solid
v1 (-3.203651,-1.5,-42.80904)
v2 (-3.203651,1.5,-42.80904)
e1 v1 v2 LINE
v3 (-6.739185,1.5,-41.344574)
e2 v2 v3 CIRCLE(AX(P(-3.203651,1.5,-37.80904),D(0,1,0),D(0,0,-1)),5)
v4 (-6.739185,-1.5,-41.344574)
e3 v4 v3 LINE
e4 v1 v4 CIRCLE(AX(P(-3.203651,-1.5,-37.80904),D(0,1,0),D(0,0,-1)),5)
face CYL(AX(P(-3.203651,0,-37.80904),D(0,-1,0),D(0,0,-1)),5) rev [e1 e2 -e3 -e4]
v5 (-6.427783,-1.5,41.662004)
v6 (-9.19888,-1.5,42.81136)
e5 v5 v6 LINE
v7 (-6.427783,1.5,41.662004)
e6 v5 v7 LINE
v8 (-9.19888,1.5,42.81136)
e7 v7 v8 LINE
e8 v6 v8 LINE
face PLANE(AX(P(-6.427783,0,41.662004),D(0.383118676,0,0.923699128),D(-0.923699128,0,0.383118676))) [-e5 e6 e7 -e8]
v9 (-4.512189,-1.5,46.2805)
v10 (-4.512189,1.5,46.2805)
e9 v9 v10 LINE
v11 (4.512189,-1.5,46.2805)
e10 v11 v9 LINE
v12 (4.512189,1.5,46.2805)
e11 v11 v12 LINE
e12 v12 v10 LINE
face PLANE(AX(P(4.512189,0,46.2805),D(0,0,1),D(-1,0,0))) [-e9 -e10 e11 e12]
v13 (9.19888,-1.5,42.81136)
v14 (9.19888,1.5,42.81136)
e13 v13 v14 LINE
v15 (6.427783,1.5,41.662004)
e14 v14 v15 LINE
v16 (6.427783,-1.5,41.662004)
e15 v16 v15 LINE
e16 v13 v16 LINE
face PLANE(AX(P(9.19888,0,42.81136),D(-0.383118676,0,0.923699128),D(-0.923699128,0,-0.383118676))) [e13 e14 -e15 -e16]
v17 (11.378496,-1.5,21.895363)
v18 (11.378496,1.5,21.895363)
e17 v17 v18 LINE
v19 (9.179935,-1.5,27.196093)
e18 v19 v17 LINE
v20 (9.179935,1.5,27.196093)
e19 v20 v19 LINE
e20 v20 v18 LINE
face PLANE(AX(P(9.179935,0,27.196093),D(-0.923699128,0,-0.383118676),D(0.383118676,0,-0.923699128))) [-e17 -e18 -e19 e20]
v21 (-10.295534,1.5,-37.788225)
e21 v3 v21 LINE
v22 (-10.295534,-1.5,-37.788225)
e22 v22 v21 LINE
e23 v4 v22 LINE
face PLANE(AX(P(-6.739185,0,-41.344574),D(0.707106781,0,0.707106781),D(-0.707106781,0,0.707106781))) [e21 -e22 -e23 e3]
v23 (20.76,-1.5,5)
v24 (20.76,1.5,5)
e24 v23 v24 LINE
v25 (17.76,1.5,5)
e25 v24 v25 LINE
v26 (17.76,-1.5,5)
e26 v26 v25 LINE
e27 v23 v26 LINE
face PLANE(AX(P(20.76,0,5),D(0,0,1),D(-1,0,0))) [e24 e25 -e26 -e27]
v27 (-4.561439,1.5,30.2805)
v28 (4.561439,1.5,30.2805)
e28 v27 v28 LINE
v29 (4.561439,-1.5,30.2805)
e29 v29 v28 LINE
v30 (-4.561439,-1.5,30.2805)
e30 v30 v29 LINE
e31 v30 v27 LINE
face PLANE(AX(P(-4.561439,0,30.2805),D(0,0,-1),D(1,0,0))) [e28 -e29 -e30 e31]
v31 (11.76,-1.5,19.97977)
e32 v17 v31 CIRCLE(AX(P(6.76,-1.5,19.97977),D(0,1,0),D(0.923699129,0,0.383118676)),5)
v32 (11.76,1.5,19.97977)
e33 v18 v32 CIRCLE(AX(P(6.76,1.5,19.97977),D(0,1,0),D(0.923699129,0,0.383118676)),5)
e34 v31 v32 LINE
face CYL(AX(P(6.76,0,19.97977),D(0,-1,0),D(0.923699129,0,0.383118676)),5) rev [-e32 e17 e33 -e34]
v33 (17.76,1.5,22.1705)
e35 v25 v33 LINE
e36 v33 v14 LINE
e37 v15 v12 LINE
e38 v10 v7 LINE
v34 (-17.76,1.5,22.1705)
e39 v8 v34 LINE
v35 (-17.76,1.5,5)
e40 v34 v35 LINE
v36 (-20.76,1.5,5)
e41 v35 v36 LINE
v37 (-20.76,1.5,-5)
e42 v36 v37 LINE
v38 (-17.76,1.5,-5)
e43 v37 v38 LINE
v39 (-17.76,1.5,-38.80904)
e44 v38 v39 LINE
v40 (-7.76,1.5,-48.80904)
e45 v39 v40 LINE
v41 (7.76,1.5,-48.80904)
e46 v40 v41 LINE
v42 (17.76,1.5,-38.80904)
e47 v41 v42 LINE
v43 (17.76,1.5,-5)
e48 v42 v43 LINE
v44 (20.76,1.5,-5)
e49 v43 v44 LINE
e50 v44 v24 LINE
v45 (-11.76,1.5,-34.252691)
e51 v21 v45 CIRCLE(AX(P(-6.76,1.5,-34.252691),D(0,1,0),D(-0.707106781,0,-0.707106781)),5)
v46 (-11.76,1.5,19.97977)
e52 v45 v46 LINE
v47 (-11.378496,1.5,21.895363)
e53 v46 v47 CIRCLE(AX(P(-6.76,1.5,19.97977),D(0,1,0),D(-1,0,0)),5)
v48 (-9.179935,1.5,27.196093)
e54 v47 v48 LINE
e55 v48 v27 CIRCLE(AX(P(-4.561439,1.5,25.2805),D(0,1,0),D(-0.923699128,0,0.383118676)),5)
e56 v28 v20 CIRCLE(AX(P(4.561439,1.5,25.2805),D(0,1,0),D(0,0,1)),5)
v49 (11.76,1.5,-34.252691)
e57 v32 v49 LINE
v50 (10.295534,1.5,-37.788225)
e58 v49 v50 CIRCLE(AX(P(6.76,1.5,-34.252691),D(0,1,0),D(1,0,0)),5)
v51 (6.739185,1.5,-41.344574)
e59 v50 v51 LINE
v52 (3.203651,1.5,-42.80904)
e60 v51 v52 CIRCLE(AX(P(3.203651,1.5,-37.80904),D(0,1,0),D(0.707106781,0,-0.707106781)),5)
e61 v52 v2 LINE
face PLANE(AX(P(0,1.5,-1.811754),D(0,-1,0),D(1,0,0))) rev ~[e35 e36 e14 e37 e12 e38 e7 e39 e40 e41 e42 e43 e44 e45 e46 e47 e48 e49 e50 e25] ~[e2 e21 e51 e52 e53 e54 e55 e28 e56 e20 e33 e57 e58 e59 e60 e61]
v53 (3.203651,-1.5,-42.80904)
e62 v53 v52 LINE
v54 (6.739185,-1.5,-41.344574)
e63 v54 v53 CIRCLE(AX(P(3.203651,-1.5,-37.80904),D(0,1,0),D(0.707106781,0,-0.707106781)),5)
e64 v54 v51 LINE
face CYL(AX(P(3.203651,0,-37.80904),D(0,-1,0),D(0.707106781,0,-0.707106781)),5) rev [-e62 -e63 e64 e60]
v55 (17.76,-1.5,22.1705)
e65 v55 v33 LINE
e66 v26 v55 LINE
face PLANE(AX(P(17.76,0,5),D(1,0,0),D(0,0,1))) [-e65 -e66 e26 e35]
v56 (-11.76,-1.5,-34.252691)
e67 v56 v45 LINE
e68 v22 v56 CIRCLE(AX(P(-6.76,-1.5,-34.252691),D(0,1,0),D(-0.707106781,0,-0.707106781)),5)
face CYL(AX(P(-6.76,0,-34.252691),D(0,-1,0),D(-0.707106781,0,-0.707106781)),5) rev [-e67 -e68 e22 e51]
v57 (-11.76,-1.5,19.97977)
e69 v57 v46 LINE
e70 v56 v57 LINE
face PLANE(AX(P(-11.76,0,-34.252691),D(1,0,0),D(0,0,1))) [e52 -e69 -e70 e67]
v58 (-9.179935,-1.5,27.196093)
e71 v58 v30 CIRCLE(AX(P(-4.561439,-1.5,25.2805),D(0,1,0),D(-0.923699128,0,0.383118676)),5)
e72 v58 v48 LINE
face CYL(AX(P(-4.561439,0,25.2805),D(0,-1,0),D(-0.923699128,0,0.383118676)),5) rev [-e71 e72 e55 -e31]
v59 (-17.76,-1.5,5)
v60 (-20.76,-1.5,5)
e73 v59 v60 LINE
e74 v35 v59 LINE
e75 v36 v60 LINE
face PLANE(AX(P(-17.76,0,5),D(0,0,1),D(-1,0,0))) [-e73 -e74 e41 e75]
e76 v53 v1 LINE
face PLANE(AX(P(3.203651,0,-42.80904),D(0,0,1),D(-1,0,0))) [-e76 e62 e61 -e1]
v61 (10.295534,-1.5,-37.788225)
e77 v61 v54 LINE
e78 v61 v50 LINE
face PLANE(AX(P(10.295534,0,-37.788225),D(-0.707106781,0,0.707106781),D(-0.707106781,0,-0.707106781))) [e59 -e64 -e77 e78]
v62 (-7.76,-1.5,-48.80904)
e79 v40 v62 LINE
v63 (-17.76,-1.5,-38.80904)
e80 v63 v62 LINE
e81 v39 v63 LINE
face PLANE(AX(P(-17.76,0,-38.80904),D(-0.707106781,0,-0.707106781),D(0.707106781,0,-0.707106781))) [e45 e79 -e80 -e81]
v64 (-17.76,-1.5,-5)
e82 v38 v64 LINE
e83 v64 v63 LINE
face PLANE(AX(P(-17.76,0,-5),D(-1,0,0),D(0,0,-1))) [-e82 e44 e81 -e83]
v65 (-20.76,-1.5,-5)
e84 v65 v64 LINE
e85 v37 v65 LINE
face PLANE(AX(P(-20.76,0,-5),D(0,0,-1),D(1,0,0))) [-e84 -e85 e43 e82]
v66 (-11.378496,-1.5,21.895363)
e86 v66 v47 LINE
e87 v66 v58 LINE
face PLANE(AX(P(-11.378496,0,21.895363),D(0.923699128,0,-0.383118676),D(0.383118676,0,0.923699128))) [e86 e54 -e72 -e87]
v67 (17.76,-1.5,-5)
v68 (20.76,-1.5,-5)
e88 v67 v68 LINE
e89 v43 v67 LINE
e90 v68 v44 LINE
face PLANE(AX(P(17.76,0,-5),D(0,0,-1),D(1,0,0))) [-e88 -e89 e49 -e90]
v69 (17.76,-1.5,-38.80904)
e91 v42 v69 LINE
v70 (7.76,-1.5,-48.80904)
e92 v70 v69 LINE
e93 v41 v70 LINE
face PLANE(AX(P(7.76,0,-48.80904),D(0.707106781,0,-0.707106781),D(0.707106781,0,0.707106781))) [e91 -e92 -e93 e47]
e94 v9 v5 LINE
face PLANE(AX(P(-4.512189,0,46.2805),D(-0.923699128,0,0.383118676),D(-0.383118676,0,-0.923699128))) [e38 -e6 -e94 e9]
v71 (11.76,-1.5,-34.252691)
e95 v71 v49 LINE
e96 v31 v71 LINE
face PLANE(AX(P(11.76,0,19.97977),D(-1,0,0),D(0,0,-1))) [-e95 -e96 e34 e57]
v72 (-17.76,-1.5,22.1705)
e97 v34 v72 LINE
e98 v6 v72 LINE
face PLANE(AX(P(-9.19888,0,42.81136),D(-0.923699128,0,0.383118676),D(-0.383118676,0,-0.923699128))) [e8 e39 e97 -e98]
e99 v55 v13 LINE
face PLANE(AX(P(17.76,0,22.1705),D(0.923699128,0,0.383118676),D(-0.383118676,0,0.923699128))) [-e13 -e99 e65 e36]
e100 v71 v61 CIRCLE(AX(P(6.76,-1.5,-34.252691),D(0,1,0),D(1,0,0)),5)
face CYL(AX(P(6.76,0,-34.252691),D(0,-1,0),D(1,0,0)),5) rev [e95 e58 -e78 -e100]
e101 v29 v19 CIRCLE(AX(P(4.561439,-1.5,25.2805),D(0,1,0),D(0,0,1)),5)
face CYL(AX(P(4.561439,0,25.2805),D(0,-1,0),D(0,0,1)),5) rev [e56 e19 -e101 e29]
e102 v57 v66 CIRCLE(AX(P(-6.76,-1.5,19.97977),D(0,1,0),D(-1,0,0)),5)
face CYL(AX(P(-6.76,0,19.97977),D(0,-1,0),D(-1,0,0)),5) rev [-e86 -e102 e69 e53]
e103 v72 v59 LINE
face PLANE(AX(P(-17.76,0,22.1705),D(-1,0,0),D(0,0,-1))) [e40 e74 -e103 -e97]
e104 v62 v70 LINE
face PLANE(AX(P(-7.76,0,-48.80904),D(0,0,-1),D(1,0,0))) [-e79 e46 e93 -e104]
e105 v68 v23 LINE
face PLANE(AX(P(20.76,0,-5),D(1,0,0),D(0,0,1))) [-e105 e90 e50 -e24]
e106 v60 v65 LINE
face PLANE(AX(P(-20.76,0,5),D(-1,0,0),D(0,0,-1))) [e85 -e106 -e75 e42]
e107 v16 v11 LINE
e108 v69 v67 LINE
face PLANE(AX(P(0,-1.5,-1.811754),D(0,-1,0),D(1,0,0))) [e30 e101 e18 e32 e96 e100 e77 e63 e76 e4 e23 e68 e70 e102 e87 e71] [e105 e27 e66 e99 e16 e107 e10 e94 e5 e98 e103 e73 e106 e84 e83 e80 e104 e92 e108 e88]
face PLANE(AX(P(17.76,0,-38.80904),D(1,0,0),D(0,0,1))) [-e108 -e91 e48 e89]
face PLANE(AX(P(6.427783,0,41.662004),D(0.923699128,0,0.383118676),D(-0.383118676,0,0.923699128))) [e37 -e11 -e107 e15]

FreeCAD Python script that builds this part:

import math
import FreeCAD as App
import Part
import Sketcher

V = App.Vector


def add_polygon(sketch, points):
    """Adds a closed chain of lines whose ends are joined by coincident constraints."""
    first, n = sketch.GeometryCount, len(points)
    for a, b in zip(points, points[1:] + points[:1]):
        sketch.addGeometry(Part.LineSegment(App.Vector(*a, 0), App.Vector(*b, 0)), False)
    for i in range(n):
        sketch.addConstraint(Sketcher.Constraint("Coincident", first + i, 2, first + (i + 1) % n, 1))

doc = App.newDocument("Part")
body = doc.addObject("PartDesign::Body", "Body")

# Sketch on XZ plane
sketch1 = body.newObject("Sketcher::SketchObject", "Sketch")
sketch1.AttachmentSupport = (doc.getObject("XZ_Plane"), [""])
sketch1.MapMode = "FlatFace"
add_polygon(sketch1, [(-9.2, 42.8), (-17.8, 22.2), (-17.8, 5), (-20.8, 5), (-20.8, -5), (-17.8, -5), (-17.8, -38.8), (-7.8, -48.8), (7.8, -48.8), (17.8, -38.8), (17.8, -5), (20.8, -5), (20.8, 5), (17.8, 5), (17.8, 22.2), (9.2, 42.8), (6.4, 41.7), (4.5, 46.3), (-4.5, 46.3), (-6.4, 41.7)])  # lines 0-19
sketch1.addGeometry(Part.ArcOfCircle(Part.Circle(V(4.6, 25.3, 0), V(0, 0, 1), 5), math.radians(23), math.radians(90)), False)  # 20
sketch1.addGeometry(Part.LineSegment(V(9.2, 27.2, 0), V(11.4, 21.9, 0)), False)  # 21
sketch1.addGeometry(Part.ArcOfCircle(Part.Circle(V(6.8, 20, 0), V(0, 0, 1), 5), math.radians(0), math.radians(23)), False)  # 22
sketch1.addGeometry(Part.LineSegment(V(11.8, 20, 0), V(11.8, -34.3, 0)), False)  # 23
sketch1.addGeometry(Part.ArcOfCircle(Part.Circle(V(6.8, -34.3, 0), V(0, 0, 1), 5), math.radians(-45), math.radians(0)), False)  # 24
sketch1.addGeometry(Part.LineSegment(V(10.3, -37.8, 0), V(6.7, -41.3, 0)), False)  # 25
sketch1.addGeometry(Part.ArcOfCircle(Part.Circle(V(3.2, -37.8, 0), V(0, 0, 1), 5), math.radians(-90), math.radians(-45)), False)  # 26
sketch1.addGeometry(Part.LineSegment(V(3.2, -42.8, 0), V(-3.2, -42.8, 0)), False)  # 27
sketch1.addGeometry(Part.ArcOfCircle(Part.Circle(V(-3.2, -37.8, 0), V(0, 0, 1), 5), math.radians(-135), math.radians(-90)), False)  # 28
sketch1.addGeometry(Part.LineSegment(V(-6.7, -41.3, 0), V(-10.3, -37.8, 0)), False)  # 29
sketch1.addGeometry(Part.ArcOfCircle(Part.Circle(V(-6.8, -34.3, 0), V(0, 0, 1), 5), math.radians(180), math.radians(225)), False)  # 30
sketch1.addGeometry(Part.LineSegment(V(-11.8, -34.3, 0), V(-11.8, 20, 0)), False)  # 31
sketch1.addGeometry(Part.ArcOfCircle(Part.Circle(V(-6.8, 20, 0), V(0, 0, 1), 5), math.radians(157), math.radians(180)), False)  # 32
sketch1.addGeometry(Part.LineSegment(V(-11.4, 21.9, 0), V(-9.2, 27.2, 0)), False)  # 33
sketch1.addGeometry(Part.ArcOfCircle(Part.Circle(V(-4.6, 25.3, 0), V(0, 0, 1), 5), math.radians(90), math.radians(157)), False)  # 34
sketch1.addGeometry(Part.LineSegment(V(-4.6, 30.3, 0), V(4.6, 30.3, 0)), False)  # 35
sketch1.addConstraint(Sketcher.Constraint("Tangent", 20, 1, 21, 1))
sketch1.addConstraint(Sketcher.Constraint("Tangent", 21, 2, 22, 2))
sketch1.addConstraint(Sketcher.Constraint("Tangent", 22, 1, 23, 1))
sketch1.addConstraint(Sketcher.Constraint("Tangent", 23, 2, 24, 2))
sketch1.addConstraint(Sketcher.Constraint("Tangent", 24, 1, 25, 1))
sketch1.addConstraint(Sketcher.Constraint("Tangent", 25, 2, 26, 2))
sketch1.addConstraint(Sketcher.Constraint("Tangent", 26, 1, 27, 1))
sketch1.addConstraint(Sketcher.Constraint("Tangent", 27, 2, 28, 2))
sketch1.addConstraint(Sketcher.Constraint("Tangent", 28, 1, 29, 1))
sketch1.addConstraint(Sketcher.Constraint("Tangent", 29, 2, 30, 2))
sketch1.addConstraint(Sketcher.Constraint("Tangent", 30, 1, 31, 1))
sketch1.addConstraint(Sketcher.Constraint("Tangent", 31, 2, 32, 2))
sketch1.addConstraint(Sketcher.Constraint("Tangent", 32, 1, 33, 1))
sketch1.addConstraint(Sketcher.Constraint("Tangent", 33, 2, 34, 2))
sketch1.addConstraint(Sketcher.Constraint("Tangent", 34, 1, 35, 1))
sketch1.addConstraint(Sketcher.Constraint("Tangent", 35, 2, 20, 2))
sketch1.addConstraint(Sketcher.Constraint("Vertical", 1))
sketch1.addConstraint(Sketcher.Constraint("Horizontal", 2))
sketch1.addConstraint(Sketcher.Constraint("Vertical", 3))
sketch1.addConstraint(Sketcher.Constraint("Horizontal", 4))
sketch1.addConstraint(Sketcher.Constraint("Vertical", 5))
sketch1.addConstraint(Sketcher.Constraint("Horizontal", 7))
sketch1.addConstraint(Sketcher.Constraint("Vertical", 9))
sketch1.addConstraint(Sketcher.Constraint("Horizontal", 10))
sketch1.addConstraint(Sketcher.Constraint("Vertical", 11))
sketch1.addConstraint(Sketcher.Constraint("Horizontal", 12))
sketch1.addConstraint(Sketcher.Constraint("Vertical", 13))
sketch1.addConstraint(Sketcher.Constraint("Horizontal", 17))
sketch1.addConstraint(Sketcher.Constraint("Vertical", 23))
sketch1.addConstraint(Sketcher.Constraint("Horizontal", 27))
sketch1.addConstraint(Sketcher.Constraint("Vertical", 31))
sketch1.addConstraint(Sketcher.Constraint("Horizontal", 35))
sketch1.addConstraint(Sketcher.Constraint("Equal", 20, 22))
sketch1.addConstraint(Sketcher.Constraint("Equal", 22, 24))
sketch1.addConstraint(Sketcher.Constraint("Equal", 24, 26))
sketch1.addConstraint(Sketcher.Constraint("Equal", 26, 28))
sketch1.addConstraint(Sketcher.Constraint("Equal", 28, 30))
sketch1.addConstraint(Sketcher.Constraint("Equal", 30, 32))
sketch1.addConstraint(Sketcher.Constraint("Equal", 32, 34))
sketch1.addConstraint(Sketcher.Constraint("Symmetric", 1, 2, 9, 2, -1, 1))
sketch1.addConstraint(Sketcher.Constraint("Symmetric", 3, 2, 11, 2, -1, 1))
sketch1.addConstraint(Sketcher.Constraint("Symmetric", 24, 3, 30, 3, -2))
sketch1.addConstraint(Sketcher.Constraint("Symmetric", 5, 2, 8, 2, -2))
sketch1.addConstraint(Sketcher.Constraint("Symmetric", 1, 2, 12, 2, -2))
sketch1.addConstraint(Sketcher.Constraint("Symmetric", 15, 2, 18, 2, -2))
sketch1.addConstraint(Sketcher.Constraint("Symmetric", 14, 2, 19, 2, -2))
sketch1.addConstraint(Sketcher.Constraint("Symmetric", 21, 2, 32, 1, -2))
sketch1.addConstraint(Sketcher.Constraint("Perpendicular", 6, 8))
sketch1.addConstraint(Sketcher.Constraint("Perpendicular", 14, 15))
sketch1.addConstraint(Sketcher.Constraint("Perpendicular", 15, 16))
sketch1.addConstraint(Sketcher.Constraint("Parallel", 0, 18))
sketch1.addConstraint(Sketcher.Constraint("Perpendicular", 18, 19))
sketch1.addConstraint(Sketcher.Constraint("Parallel", 16, 21))
sketch1.addConstraint(Sketcher.Constraint("Parallel", 8, 25))
sketch1.addConstraint(Sketcher.Constraint("Perpendicular", 25, 29))
sketch1.addConstraint(Sketcher.Constraint("Horizontal", 25, 2, 28, 1))
sketch1.addConstraint(Sketcher.Constraint("Radius", 20, 5.0))
sketch1.addConstraint(Sketcher.Constraint("DistanceX", 2, 2, 2, 1, 3.0))
sketch1.addConstraint(Sketcher.Constraint("DistanceY", 3, 2, 3, 1, 10.0))
sketch1.addConstraint(Sketcher.Constraint("Distance", 15, 3.0))
sketch1.addConstraint(Sketcher.Constraint("Distance", 16, 5.0))
sketch1.addConstraint(Sketcher.Constraint("DistanceX", 0, 2, 32, 3, 11.0))
sketch1.addConstraint(Sketcher.Constraint("DistanceY", 5, 2, 28, 3, 1.0))
sketch1.addConstraint(Sketcher.Constraint("DistanceY", 6, 2, 28, 3, 11.0))
sketch1.addConstraint(Sketcher.Constraint("DistanceY", 20, 3, 16, 2, 21.0))
sketch1.addConstraint(Sketcher.Constraint("DistanceX", 7, 1, 7, 2, 15.52))
sketch1.addConstraint(Sketcher.Constraint("DistanceY", 0, 2, 34, 3, 3.11))
sketch1.addConstraint(Sketcher.Constraint("DistanceX", 27, 2, 27, 1, 6.407302))
sketch1.addConstraint(Sketcher.Constraint("DistanceY", 1, 2, 1, 1, 17.1705))
sketch1.addConstraint(Sketcher.Constraint("DistanceX", 17, 2, 17, 1, 9.024378))
sketch1.addConstraint(Sketcher.Constraint("DistanceX", 35, 1, 35, 2, 9.122878))
sketch1.addConstraint(Sketcher.Constraint("DistanceY", 5, 2, 5, 1, 33.80904))
pad1 = body.newObject("PartDesign::Pad", "Pad")
pad1.Profile = sketch1
pad1.Length = 3
pad1.Midplane = True

doc.recompute()
